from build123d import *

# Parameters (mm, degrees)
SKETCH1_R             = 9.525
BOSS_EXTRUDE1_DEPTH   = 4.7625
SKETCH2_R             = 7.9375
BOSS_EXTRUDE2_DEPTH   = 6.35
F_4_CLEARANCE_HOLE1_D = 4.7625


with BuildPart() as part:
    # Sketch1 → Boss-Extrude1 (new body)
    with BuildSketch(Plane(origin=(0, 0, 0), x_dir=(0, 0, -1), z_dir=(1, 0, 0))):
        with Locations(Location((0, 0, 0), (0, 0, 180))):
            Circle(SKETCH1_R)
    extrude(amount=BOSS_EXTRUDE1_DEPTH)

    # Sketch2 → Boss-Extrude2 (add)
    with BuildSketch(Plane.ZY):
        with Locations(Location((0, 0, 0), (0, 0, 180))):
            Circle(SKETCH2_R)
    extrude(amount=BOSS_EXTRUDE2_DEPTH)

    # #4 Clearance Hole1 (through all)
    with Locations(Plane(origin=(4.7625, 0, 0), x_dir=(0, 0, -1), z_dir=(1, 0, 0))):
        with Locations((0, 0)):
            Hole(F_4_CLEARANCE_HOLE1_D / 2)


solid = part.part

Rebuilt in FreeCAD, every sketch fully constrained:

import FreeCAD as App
import Part
import Sketcher
Q = App.Units.Quantity

doc = App.newDocument("Part")
body = doc.addObject("PartDesign::Body", "Body")

sketch1 = doc.addObject("Sketcher::SketchObject", "Sketch")
body.addObject(sketch1)
sketch1.AttachmentSupport = (doc.YZ_Plane, [""])
sketch1.MapMode = "FlatFace"
sketch1.addGeometry(Part.Circle(App.Vector(0, 0, 0), App.Vector(0, 0, 1), 10), False)
sketch1.addConstraint(Sketcher.Constraint("Coincident", 0, 3, -1, 1))
sketch1.addConstraint(Sketcher.Constraint("Diameter", 0, Q("0.75 in")))
pad1 = doc.addObject("PartDesign::Pad", "Pad")
body.addObject(pad1)
pad1.Profile = sketch1
pad1.Length = Q("0.1875 in")

sketch2 = doc.addObject("Sketcher::SketchObject", "Sketch001")
body.addObject(sketch2)
sketch2.AttachmentSupport = (doc.YZ_Plane, [""])
sketch2.MapMode = "FlatFace"
sketch2.addGeometry(Part.Circle(App.Vector(0, 0, 0), App.Vector(0, 0, 1), 8), False)
sketch2.addConstraint(Sketcher.Constraint("Coincident", 0, 3, -1, 1))
sketch2.addConstraint(Sketcher.Constraint("Diameter", 0, Q("0.625 in")))
pad2 = doc.addObject("PartDesign::Pad", "Pad001")
body.addObject(pad2)
pad2.Profile = sketch2
pad2.Length = Q("0.25 in")
pad2.Reversed = True

sketch3 = doc.addObject("Sketcher::SketchObject", "Sketch002")
body.addObject(sketch3)
sketch3.AttachmentSupport = (doc.YZ_Plane, [""])
sketch3.MapMode = "FlatFace"
sketch3.AttachmentOffset = App.Placement(App.Vector(0, 0, 0.1875 * 25.4), App.Rotation())
sketch3.addGeometry(Part.Circle(App.Vector(0, 0, 0), App.Vector(0, 0, 1), 2.4), False)
sketch3.addConstraint(Sketcher.Constraint("Coincident", 0, 3, -1, 1))
sketch3.addConstraint(Sketcher.Constraint("Diameter", 0, Q("0.1875 in")))
doc.recompute()
hole = doc.addObject("PartDesign::Hole", "Hole")
body.addObject(hole)
hole.Profile = sketch3
hole.ThreadType = "None"
hole.Diameter = Q("0.1875 in")
hole.DepthType = "ThroughAll"

doc.recompute()
